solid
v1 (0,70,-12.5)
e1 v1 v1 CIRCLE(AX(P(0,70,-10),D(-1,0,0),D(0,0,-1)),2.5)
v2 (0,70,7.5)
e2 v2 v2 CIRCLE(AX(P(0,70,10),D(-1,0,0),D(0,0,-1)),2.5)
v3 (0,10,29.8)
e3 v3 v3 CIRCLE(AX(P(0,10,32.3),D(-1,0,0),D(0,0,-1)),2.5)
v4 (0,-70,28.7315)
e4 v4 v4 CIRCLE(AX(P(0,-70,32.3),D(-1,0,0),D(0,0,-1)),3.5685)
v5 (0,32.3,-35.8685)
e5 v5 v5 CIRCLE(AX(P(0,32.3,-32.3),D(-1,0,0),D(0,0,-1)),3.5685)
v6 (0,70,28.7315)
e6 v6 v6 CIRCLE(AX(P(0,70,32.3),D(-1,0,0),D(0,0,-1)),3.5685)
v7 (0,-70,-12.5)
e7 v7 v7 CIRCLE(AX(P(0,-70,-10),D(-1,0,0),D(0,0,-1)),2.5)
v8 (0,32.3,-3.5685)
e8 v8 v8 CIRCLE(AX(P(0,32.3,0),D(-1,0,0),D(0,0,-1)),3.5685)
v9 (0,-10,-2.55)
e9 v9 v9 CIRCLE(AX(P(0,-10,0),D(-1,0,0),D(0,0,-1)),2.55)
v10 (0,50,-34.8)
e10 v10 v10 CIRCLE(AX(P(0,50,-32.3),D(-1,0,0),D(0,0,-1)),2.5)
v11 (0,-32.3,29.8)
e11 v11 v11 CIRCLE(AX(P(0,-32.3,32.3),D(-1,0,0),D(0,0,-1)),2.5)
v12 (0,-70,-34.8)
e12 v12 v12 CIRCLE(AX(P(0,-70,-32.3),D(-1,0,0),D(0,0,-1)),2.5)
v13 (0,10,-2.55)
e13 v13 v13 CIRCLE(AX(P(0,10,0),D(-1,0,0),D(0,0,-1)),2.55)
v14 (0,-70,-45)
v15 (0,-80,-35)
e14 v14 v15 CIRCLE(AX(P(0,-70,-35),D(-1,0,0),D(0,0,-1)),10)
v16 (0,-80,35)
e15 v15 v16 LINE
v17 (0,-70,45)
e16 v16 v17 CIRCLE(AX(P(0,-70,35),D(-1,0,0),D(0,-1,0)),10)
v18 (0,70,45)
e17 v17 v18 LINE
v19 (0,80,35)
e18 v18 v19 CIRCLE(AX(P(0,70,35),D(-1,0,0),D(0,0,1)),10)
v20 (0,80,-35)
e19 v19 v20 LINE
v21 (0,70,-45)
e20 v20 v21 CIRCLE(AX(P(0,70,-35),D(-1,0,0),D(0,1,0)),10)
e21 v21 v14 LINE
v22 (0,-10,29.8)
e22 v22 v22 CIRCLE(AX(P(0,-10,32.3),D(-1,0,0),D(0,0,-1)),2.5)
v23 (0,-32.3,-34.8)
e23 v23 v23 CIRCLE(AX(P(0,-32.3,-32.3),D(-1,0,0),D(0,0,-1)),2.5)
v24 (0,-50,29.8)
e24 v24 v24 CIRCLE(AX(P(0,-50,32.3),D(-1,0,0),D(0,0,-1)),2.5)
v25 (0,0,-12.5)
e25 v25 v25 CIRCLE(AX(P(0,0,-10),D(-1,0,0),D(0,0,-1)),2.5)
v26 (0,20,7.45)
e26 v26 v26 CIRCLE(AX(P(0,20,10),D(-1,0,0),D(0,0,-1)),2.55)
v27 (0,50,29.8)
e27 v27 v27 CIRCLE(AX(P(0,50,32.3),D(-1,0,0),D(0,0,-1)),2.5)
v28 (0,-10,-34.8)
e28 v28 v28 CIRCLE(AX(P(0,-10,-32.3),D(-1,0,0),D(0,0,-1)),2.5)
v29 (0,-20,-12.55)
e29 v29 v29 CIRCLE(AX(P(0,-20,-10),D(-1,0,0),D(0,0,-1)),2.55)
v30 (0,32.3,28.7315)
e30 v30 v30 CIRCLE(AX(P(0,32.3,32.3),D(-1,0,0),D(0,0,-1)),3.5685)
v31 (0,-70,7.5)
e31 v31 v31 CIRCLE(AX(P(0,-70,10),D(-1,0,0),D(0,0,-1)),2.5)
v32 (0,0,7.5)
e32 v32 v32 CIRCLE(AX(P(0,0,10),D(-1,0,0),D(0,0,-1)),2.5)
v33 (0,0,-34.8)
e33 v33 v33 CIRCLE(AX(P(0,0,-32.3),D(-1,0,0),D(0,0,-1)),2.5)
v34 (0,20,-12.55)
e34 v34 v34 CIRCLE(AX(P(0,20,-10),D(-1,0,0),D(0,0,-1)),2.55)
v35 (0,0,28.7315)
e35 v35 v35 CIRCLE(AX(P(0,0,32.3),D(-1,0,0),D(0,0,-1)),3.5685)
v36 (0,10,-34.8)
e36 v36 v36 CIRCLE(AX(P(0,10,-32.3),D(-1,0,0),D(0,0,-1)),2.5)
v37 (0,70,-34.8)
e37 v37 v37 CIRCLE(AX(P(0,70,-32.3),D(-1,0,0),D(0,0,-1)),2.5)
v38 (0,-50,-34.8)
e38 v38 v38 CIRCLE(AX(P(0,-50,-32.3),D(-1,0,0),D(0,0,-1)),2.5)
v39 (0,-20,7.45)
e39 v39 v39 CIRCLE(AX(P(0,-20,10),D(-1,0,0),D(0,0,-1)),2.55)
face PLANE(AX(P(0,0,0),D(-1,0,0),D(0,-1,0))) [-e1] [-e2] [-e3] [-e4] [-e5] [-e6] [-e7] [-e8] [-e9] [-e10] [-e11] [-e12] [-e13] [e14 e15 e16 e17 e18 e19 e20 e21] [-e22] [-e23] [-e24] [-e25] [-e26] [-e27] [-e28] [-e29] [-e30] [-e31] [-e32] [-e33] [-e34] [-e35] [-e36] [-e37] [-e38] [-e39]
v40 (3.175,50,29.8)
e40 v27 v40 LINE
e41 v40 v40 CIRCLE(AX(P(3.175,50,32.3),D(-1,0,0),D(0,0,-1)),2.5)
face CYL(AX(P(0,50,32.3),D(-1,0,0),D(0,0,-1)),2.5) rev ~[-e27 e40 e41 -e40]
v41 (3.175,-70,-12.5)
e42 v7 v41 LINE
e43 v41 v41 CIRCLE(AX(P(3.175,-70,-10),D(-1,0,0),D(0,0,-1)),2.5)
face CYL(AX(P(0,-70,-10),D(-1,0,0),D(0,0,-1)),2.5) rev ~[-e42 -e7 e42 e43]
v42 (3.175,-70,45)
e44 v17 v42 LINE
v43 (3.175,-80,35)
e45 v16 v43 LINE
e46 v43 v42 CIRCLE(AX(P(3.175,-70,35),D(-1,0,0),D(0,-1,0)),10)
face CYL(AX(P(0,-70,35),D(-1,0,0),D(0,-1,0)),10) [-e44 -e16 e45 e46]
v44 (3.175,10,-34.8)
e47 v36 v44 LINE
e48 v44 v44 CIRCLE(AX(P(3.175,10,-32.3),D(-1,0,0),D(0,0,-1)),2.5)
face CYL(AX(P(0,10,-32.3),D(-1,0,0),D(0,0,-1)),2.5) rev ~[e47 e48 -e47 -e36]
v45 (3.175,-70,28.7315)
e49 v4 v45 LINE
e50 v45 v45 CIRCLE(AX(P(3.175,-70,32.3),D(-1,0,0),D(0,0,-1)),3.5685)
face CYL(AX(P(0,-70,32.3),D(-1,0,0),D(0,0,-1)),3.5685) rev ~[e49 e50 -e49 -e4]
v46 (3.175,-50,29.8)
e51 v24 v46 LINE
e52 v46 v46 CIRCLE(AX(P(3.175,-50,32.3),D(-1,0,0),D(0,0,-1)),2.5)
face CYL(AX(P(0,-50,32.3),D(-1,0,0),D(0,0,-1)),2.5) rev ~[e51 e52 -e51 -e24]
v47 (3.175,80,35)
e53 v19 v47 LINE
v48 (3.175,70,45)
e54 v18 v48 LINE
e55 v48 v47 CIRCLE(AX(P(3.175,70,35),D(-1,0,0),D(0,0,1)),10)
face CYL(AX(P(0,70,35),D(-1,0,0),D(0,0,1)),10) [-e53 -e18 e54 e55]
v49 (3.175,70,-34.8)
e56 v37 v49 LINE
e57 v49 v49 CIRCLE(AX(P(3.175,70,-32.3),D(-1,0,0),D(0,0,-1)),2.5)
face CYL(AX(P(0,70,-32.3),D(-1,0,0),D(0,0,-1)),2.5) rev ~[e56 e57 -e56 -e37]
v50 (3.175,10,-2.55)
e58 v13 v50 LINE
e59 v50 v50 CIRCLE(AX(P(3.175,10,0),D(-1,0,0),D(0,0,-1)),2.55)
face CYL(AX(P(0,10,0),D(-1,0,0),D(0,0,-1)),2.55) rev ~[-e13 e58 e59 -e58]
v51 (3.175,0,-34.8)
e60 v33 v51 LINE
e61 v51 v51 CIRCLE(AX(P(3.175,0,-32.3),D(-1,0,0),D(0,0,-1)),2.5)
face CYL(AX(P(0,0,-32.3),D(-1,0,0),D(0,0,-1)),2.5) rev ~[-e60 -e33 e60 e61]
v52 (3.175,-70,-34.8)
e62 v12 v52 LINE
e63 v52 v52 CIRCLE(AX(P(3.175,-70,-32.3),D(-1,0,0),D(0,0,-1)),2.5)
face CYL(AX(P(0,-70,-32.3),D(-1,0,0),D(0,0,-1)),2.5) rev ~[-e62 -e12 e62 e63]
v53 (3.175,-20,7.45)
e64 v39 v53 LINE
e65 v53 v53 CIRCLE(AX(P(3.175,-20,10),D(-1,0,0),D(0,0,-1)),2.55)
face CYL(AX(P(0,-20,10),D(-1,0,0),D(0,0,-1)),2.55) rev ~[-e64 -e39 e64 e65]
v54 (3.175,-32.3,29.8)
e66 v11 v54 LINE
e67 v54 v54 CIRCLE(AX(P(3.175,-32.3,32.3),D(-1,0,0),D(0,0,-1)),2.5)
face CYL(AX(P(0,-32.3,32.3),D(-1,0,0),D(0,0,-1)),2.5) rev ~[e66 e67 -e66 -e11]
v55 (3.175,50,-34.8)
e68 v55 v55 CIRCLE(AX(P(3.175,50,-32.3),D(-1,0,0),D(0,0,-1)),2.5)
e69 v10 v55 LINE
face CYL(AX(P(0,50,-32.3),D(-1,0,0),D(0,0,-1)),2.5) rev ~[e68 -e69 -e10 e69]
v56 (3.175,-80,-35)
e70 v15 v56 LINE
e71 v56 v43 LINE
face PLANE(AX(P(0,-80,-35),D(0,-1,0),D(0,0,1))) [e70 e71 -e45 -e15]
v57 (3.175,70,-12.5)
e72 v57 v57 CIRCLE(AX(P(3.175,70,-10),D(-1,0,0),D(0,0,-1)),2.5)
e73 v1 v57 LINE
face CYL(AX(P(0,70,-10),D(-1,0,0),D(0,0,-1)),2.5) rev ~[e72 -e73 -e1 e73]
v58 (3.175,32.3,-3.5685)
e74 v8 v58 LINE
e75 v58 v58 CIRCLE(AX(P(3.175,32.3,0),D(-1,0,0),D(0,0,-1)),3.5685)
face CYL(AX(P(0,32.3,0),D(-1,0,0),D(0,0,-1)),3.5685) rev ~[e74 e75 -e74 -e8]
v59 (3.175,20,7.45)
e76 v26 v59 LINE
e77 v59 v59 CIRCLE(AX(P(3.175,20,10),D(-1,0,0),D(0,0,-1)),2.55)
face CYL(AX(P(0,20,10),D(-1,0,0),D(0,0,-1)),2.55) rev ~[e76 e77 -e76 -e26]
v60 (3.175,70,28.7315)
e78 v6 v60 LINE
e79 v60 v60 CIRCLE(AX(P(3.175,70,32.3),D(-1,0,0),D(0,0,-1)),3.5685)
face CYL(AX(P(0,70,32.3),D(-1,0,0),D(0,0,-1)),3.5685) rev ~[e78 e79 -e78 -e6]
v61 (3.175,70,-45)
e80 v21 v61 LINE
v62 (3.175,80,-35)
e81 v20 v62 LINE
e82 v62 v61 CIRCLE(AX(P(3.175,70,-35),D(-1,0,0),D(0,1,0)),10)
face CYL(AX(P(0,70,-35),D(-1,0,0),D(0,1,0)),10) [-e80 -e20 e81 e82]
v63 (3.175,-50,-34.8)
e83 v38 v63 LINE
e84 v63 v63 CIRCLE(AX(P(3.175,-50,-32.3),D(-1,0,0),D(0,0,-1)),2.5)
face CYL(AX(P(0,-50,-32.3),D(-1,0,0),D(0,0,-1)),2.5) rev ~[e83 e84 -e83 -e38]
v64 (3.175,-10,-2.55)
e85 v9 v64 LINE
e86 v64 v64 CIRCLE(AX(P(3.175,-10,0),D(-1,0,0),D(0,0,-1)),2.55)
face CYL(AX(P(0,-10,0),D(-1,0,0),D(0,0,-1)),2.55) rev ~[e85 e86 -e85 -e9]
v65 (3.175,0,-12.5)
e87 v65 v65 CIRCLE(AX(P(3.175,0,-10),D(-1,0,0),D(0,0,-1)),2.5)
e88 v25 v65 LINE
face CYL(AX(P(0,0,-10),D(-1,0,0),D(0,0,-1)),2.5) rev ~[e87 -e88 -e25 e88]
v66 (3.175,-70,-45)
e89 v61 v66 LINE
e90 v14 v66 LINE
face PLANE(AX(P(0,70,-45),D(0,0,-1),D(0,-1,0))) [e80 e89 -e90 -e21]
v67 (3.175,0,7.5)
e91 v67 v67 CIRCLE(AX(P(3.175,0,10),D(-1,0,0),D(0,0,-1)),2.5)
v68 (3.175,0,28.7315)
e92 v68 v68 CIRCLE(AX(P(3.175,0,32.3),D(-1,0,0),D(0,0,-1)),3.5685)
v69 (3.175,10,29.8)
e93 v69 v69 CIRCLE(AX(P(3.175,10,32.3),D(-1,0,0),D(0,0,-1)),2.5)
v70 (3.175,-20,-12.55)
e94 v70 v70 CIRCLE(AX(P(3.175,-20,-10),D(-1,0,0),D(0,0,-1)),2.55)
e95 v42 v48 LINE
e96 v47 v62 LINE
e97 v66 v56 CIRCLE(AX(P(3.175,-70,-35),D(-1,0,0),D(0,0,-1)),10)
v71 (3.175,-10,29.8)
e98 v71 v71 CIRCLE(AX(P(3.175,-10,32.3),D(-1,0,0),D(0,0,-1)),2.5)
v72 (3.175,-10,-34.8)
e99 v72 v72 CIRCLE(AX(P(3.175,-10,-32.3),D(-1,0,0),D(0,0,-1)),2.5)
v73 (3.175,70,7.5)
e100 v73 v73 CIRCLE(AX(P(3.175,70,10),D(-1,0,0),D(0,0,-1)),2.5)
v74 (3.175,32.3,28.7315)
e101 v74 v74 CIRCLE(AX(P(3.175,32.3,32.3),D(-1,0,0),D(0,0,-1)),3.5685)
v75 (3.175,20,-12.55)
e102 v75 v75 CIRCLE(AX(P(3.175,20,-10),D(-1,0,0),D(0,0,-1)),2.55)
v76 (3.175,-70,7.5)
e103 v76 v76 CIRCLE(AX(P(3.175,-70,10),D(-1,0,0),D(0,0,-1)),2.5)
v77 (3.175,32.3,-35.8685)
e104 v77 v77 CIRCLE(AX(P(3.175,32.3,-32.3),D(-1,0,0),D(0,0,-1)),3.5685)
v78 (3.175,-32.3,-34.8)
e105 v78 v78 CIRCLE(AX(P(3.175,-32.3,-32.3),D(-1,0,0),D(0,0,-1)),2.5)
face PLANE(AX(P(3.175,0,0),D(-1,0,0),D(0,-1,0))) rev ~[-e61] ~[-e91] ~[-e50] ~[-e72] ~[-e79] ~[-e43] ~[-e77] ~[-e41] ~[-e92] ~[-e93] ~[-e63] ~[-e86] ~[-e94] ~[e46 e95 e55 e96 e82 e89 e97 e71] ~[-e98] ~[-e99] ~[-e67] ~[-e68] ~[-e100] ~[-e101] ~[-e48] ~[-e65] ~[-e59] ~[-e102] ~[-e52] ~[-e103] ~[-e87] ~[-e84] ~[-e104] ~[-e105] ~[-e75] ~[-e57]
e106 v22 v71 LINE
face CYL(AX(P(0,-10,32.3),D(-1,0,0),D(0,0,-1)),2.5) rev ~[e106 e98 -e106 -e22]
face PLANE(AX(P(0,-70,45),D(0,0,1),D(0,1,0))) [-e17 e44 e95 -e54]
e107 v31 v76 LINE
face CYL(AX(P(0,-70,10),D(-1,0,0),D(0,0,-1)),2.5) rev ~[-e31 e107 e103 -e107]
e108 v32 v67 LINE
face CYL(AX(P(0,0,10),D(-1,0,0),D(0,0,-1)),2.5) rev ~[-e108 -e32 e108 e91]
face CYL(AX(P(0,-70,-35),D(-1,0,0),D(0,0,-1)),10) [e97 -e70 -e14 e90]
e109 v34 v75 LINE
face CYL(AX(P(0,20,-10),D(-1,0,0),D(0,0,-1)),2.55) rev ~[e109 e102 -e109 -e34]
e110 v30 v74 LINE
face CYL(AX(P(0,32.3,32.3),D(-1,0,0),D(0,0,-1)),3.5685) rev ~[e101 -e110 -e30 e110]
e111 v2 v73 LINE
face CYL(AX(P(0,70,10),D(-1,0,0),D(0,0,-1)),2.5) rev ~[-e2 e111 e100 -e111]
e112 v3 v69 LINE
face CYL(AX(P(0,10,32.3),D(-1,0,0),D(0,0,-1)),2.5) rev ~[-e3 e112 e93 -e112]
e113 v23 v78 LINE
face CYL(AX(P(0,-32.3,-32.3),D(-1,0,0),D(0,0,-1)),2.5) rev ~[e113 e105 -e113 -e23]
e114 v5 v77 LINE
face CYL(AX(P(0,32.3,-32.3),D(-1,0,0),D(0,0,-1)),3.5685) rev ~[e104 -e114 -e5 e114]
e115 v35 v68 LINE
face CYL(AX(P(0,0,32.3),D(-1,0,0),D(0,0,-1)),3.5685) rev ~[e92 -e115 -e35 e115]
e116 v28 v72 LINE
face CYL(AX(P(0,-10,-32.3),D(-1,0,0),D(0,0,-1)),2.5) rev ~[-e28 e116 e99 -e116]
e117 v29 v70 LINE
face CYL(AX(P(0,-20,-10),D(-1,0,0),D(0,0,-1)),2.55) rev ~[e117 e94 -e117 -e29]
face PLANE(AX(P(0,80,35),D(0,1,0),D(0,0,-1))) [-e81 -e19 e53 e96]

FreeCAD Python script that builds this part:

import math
import FreeCAD as App
import Part
import Sketcher
from FreeCAD import Vector

doc = App.newDocument("Part")
params = doc.addObject("Spreadsheet::Sheet", "Params")
for row, (alias, value) in enumerate([
    ("sketch1_diameter", "5 mm"),
    ("sketch1_radius", "10 mm"),
    ("sketch1_diameter2", "5.1 mm"),
    ("sketch1_width", "140 mm"),
    ("sketch1_height", "70 mm"),
    ("pad1_length", "3.175 mm"),
], start=1):
    params.set(f"A{row}", alias)
    params.set(f"B{row}", "=" + value)
    params.setAlias(f"B{row}", alias)

body = doc.addObject("PartDesign::Body", "Body")

# Sketch on YZ plane
sketch1 = body.newObject("Sketcher::SketchObject", "Sketch")
sketch1.AttachmentSupport = (doc.getObject("YZ_Plane"), [""])
sketch1.MapMode = "FlatFace"
sketch1.addGeometry([
    Part.LineSegment(Vector(80, 35, 0), Vector(80, -35, 0)),  # 0
    Part.ArcOfCircle(Part.Circle(Vector(70, -35, 0), Vector(0, 0, 1), 10), math.radians(-90), math.radians(0)),  # 1
    Part.LineSegment(Vector(70, -45, 0), Vector(-70, -45, 0)),  # 2
    Part.ArcOfCircle(Part.Circle(Vector(-70, -35, 0), Vector(0, 0, 1), 10), math.radians(180), math.radians(270)),  # 3
    Part.LineSegment(Vector(-80, -35, 0), Vector(-80, 35, 0)),  # 4
    Part.ArcOfCircle(Part.Circle(Vector(-70, 35, 0), Vector(0, 0, 1), 10), math.radians(90), math.radians(180)),  # 5
    Part.LineSegment(Vector(-70, 45, 0), Vector(70, 45, 0)),  # 6
    Part.ArcOfCircle(Part.Circle(Vector(70, 35, 0), Vector(0, 0, 1), 10), math.radians(0), math.radians(90)),  # 7
    Part.Circle(Vector(70, -32.3, 0), Vector(0, 0, 1), 2.5),  # 8
    Part.Circle(Vector(50, -32.3, 0), Vector(0, 0, 1), 2.5),  # 9
    Part.Circle(Vector(32.3, -32.3, 0), Vector(0, 0, 1), 3.6),  # 10
    Part.Circle(Vector(10, -32.3, 0), Vector(0, 0, 1), 2.5),  # 11
    Part.Circle(Vector(70, -10, 0), Vector(0, 0, 1), 2.5),  # 12
    Part.Circle(Vector(20, -10, 0), Vector(0, 0, 1), 2.5),  # 13
    Part.Circle(Vector(0, -32.3, 0), Vector(0, 0, 1), 2.5),  # 14
    Part.Circle(Vector(-10, -32.3, 0), Vector(0, 0, 1), 2.5),  # 15
    Part.Circle(Vector(-32.3, -32.3, 0), Vector(0, 0, 1), 2.5),  # 16
    Part.Circle(Vector(-50, -32.3, 0), Vector(0, 0, 1), 2.5),  # 17
    Part.Circle(Vector(-70, -32.3, 0), Vector(0, 0, 1), 2.5),  # 18
    Part.Circle(Vector(0, -10, 0), Vector(0, 0, 1), 2.5),  # 19
    Part.Circle(Vector(-20, -10, 0), Vector(0, 0, 1), 2.5),  # 20
    Part.Circle(Vector(-70, -10, 0), Vector(0, 0, 1), 2.5),  # 21
    Part.Circle(Vector(70, 10, 0), Vector(0, 0, 1), 2.5),  # 22
    Part.Circle(Vector(32.3, 0, 0), Vector(0, 0, 1), 3.6),  # 23
    Part.Circle(Vector(10, 0, 0), Vector(0, 0, 1), 2.5),  # 24
    Part.Circle(Vector(20, 10, 0), Vector(0, 0, 1), 2.5),  # 25
    Part.Circle(Vector(70, 32.3, 0), Vector(0, 0, 1), 3.6),  # 26
    Part.Circle(Vector(50, 32.3, 0), Vector(0, 0, 1), 2.5),  # 27
    Part.Circle(Vector(32.3, 32.3, 0), Vector(0, 0, 1), 3.6),  # 28
    Part.Circle(Vector(10, 32.3, 0), Vector(0, 0, 1), 2.5),  # 29
    Part.Circle(Vector(-10, 0, 0), Vector(0, 0, 1), 2.5),  # 30
    Part.Circle(Vector(0, 10, 0), Vector(0, 0, 1), 2.5),  # 31
    Part.Circle(Vector(-20, 10, 0), Vector(0, 0, 1), 2.5),  # 32
    Part.Circle(Vector(-70, 10, 0), Vector(0, 0, 1), 2.5),  # 33
    Part.Circle(Vector(0, 32.3, 0), Vector(0, 0, 1), 3.6),  # 34
    Part.Circle(Vector(-10, 32.3, 0), Vector(0, 0, 1), 2.5),  # 35
    Part.Circle(Vector(-32.3, 32.3, 0), Vector(0, 0, 1), 2.5),  # 36
    Part.Circle(Vector(-50, 32.3, 0), Vector(0, 0, 1), 2.5),  # 37
    Part.Circle(Vector(-70, 32.3, 0), Vector(0, 0, 1), 3.6),  # 38
], False)
sketch1.addConstraint([
    Sketcher.Constraint("Tangent", 0, 2, 1, 2),
    Sketcher.Constraint("Tangent", 1, 1, 2, 1),
    Sketcher.Constraint("Tangent", 2, 2, 3, 2),
    Sketcher.Constraint("Tangent", 3, 1, 4, 1),
    Sketcher.Constraint("Tangent", 4, 2, 5, 2),
    Sketcher.Constraint("Tangent", 5, 1, 6, 1),
    Sketcher.Constraint("Tangent", 6, 2, 7, 2),
    Sketcher.Constraint("Tangent", 7, 1, 0, 1),
    Sketcher.Constraint("Vertical", 0),
    Sketcher.Constraint("Horizontal", 2),
    Sketcher.Constraint("Vertical", 4),
    Sketcher.Constraint("Horizontal", 6),
    Sketcher.Constraint("Equal", 1, 3),
    Sketcher.Constraint("Equal", 3, 5),
    Sketcher.Constraint("Equal", 5, 7),
    Sketcher.Constraint("Equal", 8, 9),
    Sketcher.Constraint("Equal", 9, 11),
    Sketcher.Constraint("Equal", 11, 12),
    Sketcher.Constraint("Equal", 12, 14),
    Sketcher.Constraint("Equal", 14, 15),
    Sketcher.Constraint("Equal", 15, 16),
    Sketcher.Constraint("Equal", 16, 17),
    Sketcher.Constraint("Equal", 17, 18),
    Sketcher.Constraint("Equal", 18, 19),
    Sketcher.Constraint("Equal", 13, 20),
    Sketcher.Constraint("Equal", 19, 21),
    Sketcher.Constraint("Equal", 21, 22),
    Sketcher.Constraint("Equal", 10, 23),
    Sketcher.Constraint("Equal", 20, 24),
    Sketcher.Constraint("Equal", 24, 25),
    Sketcher.Constraint("Equal", 23, 26),
    Sketcher.Constraint("Equal", 22, 27),
    Sketcher.Constraint("Equal", 26, 28),
    Sketcher.Constraint("Equal", 27, 29),
    Sketcher.Constraint("Equal", 25, 30),
    Sketcher.Constraint("Equal", 29, 31),
    Sketcher.Constraint("Equal", 30, 32),
    Sketcher.Constraint("Equal", 31, 33),
    Sketcher.Constraint("Equal", 28, 34),
    Sketcher.Constraint("Equal", 33, 35),
    Sketcher.Constraint("Equal", 35, 36),
    Sketcher.Constraint("Equal", 36, 37),
    Sketcher.Constraint("Equal", 34, 38),
    Sketcher.Constraint("Symmetric", 1, 3, 5, 3, -1, 1),
    Sketcher.Constraint("Symmetric", 21, 3, 22, 3, -1, 1),
    Sketcher.Constraint("Symmetric", 20, 3, 25, 3, -1, 1),
    Sketcher.Constraint("Symmetric", 18, 3, 26, 3, -1, 1),
    Sketcher.Constraint("Symmetric", 17, 3, 27, 3, -1, 1),
    Sketcher.Constraint("Symmetric", 16, 3, 28, 3, -1, 1),
    Sketcher.Constraint("Symmetric", 15, 3, 29, 3, -1, 1),
    Sketcher.Constraint("Symmetric", 24, 3, 30, 3, -1, 1),
    Sketcher.Constraint("Symmetric", 19, 3, 31, 3, -1, 1),
    Sketcher.Constraint("Symmetric", 13, 3, 32, 3, -1, 1),
    Sketcher.Constraint("Symmetric", 12, 3, 33, 3, -1, 1),
    Sketcher.Constraint("Symmetric", 14, 3, 34, 3, -1, 1),
    Sketcher.Constraint("Symmetric", 11, 3, 35, 3, -1, 1),
    Sketcher.Constraint("Symmetric", 10, 3, 36, 3, -1, 1),
    Sketcher.Constraint("Symmetric", 9, 3, 37, 3, -1, 1),
    Sketcher.Constraint("Symmetric", 8, 3, 38, 3, -1, 1),
    Sketcher.Constraint("Symmetric", 11, 3, 15, 3, -2),
    Sketcher.Constraint("Symmetric", 10, 3, 16, 3, -2),
    Sketcher.Constraint("Symmetric", 9, 3, 17, 3, -2),
    Sketcher.Constraint("Symmetric", 8, 3, 18, 3, -2),
    Sketcher.Constraint("Symmetric", 13, 3, 20, 3, -2),
    Sketcher.Constraint("Symmetric", 12, 3, 21, 3, -2),
    Sketcher.Constraint("PointOnObject", 14, 3, -2),
    Sketcher.Constraint("PointOnObject", 19, 3, -2),
    Sketcher.Constraint("PointOnObject", 23, 3, -1),
    Sketcher.Constraint("PointOnObject", 24, 3, -1),
    Sketcher.Constraint("Horizontal", 8, 3, 9, 3),
    Sketcher.Constraint("Horizontal", 9, 3, 10, 3),
    Sketcher.Constraint("Horizontal", 10, 3, 11, 3),
    Sketcher.Constraint("Horizontal", 12, 3, 13, 3),
    Sketcher.Constraint("Horizontal", 11, 3, 14, 3),
    Sketcher.Constraint("Horizontal", 13, 3, 19, 3),
    Sketcher.Constraint("Vertical", 7, 3, 8, 3),
    Sketcher.Constraint("Vertical", 8, 3, 12, 3),
    Sketcher.Constraint("Vertical", 10, 3, 23, 3),
    Sketcher.Constraint("Vertical", 11, 3, 24, 3),
    Sketcher.Constraint("Diameter", 8, 5.0),
    Sketcher.Constraint("Radius", 1, 10.0),
    Sketcher.Constraint("Diameter", 13, 5.1),
    Sketcher.Constraint("DistanceX", 2, 2, 2, 1, 140.0),
    Sketcher.Constraint("DistanceY", 0, 2, 0, 1, 70.0),
    Sketcher.Constraint("Diameter", 10, 7.137),
    Sketcher.Constraint("DistanceX", -1, 1, 9, 3, 50.0),
    Sketcher.Constraint("DistanceX", -1, 1, 11, 3, 10.0),
    Sketcher.Constraint("DistanceY", 12, 3, -1, 1, 10.0),
    Sketcher.Constraint("DistanceX", -1, 1, 13, 3, 20.0),
    Sketcher.Constraint("DistanceY", 8, 3, -1, 1, 32.3),
    Sketcher.Constraint("DistanceX", -1, 1, 10, 3, 32.3),
])
sketch1.setExpression("Constraints[79]", "Params.sketch1_diameter")
sketch1.setExpression("Constraints[80]", "Params.sketch1_radius")
sketch1.setExpression("Constraints[81]", "Params.sketch1_diameter2")
sketch1.setExpression("Constraints[82]", "Params.sketch1_width")
sketch1.setExpression("Constraints[83]", "Params.sketch1_height")
pad1 = body.newObject("PartDesign::Pad", "Pad")
pad1.Profile = sketch1
pad1.setExpression("Length", "Params.pad1_length")

doc.recompute()
